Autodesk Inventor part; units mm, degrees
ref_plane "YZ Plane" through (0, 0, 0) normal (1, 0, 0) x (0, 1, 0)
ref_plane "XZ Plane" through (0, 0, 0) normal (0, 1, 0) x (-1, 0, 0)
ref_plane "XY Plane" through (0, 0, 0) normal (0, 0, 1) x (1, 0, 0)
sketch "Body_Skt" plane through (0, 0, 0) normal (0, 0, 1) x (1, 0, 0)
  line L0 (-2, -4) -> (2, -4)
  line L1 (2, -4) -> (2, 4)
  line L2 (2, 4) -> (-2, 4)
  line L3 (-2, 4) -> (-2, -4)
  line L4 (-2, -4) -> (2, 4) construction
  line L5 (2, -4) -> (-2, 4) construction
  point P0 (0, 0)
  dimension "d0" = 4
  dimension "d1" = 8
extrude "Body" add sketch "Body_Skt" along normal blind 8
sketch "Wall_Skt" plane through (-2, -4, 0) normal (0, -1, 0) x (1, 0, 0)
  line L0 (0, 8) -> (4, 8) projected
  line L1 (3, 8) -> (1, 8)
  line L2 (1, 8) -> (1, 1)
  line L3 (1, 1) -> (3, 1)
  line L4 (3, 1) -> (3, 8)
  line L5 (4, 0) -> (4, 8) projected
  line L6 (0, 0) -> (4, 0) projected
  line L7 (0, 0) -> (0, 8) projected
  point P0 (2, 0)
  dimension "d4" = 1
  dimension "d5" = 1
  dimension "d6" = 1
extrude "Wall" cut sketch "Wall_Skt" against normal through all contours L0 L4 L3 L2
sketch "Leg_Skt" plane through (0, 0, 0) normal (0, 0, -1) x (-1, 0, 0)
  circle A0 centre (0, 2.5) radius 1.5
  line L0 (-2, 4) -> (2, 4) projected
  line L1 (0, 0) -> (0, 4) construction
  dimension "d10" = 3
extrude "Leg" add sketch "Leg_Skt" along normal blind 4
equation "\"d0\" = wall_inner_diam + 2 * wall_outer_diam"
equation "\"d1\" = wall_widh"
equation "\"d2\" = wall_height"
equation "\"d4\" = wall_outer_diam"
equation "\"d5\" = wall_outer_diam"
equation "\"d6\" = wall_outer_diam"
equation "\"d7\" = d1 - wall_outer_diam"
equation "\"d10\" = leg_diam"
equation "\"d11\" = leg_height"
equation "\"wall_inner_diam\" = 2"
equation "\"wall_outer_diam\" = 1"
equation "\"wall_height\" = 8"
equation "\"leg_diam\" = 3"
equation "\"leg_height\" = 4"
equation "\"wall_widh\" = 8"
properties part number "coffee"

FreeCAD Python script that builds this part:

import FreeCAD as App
import Part
import Sketcher

V = App.Vector
Q = App.Units.Quantity

doc = App.newDocument("Part")
body = doc.addObject("PartDesign::Body", "Body")

sketch1 = body.newObject("Sketcher::SketchObject", "Sketch")
sketch1.AttachmentSupport = (doc.getObject("XY_Plane"), [""])
sketch1.MapMode = "FlatFace"
sketch1.addGeometry([
    Part.LineSegment(V(-2, 4, 0), V(-2, -4, 0)),
    Part.LineSegment(V(-2, -4, 0), V(2, -4, 0)),
    Part.LineSegment(V(2, -4, 0), V(2, 4, 0)),
    Part.LineSegment(V(2, 4, 0), V(-2, 4, 0)),
], False)
sketch1.addConstraint([
    Sketcher.Constraint("Coincident", 0, 2, 1, 1),
    Sketcher.Constraint("Coincident", 1, 2, 2, 1),
    Sketcher.Constraint("Coincident", 2, 2, 3, 1),
    Sketcher.Constraint("Coincident", 3, 2, 0, 1),
    Sketcher.Constraint("Vertical", 0),
    Sketcher.Constraint("Horizontal", 1),
    Sketcher.Constraint("Vertical", 2),
    Sketcher.Constraint("Horizontal", 3),
    Sketcher.Constraint("Symmetric", 0, 2, 2, 2, -1, 1),
    Sketcher.Constraint("DistanceX", 1, 1, 1, 2, Q("4 mm")),
    Sketcher.Constraint("DistanceY", 0, 2, 0, 1, Q("8 mm")),
])
pad1 = body.newObject("PartDesign::Pad", "Pad")
pad1.Profile = sketch1
pad1.Length = 8

sketch2 = body.newObject("Sketcher::SketchObject", "Sketch001")
sketch2.AttachmentSupport = (doc.getObject("XZ_Plane"), [""])
sketch2.MapMode = "FlatFace"
sketch2.AttachmentOffset = App.Placement(V(0, 0, 4), App.Rotation())
sketch2.addGeometry([
    Part.LineSegment(V(1, 8, 0), V(-1, 8, 0)),
    Part.LineSegment(V(-1, 8, 0), V(-1, 1, 0)),
    Part.LineSegment(V(-1, 1, 0), V(1, 1, 0)),
    Part.LineSegment(V(1, 1, 0), V(1, 8, 0)),
], False)
sketch2.addConstraint([
    Sketcher.Constraint("Coincident", 0, 2, 1, 1),
    Sketcher.Constraint("Coincident", 1, 2, 2, 1),
    Sketcher.Constraint("Coincident", 2, 2, 3, 1),
    Sketcher.Constraint("Coincident", 3, 2, 0, 1),
    Sketcher.Constraint("Horizontal", 0),
    Sketcher.Constraint("Vertical", 1),
    Sketcher.Constraint("Horizontal", 2),
    Sketcher.Constraint("Vertical", 3),
    Sketcher.Constraint("DistanceX", 0, 2, -1, 1, Q("1 mm")),
    Sketcher.Constraint("DistanceY", -1, 1, 1, 2, Q("1 mm")),
    Sketcher.Constraint("DistanceX", -1, 1, 2, 2, Q("1 mm")),
    Sketcher.Constraint("DistanceY", 1, 2, 1, 1, Q("7 mm")),
])
pocket1 = body.newObject("PartDesign::Pocket", "Pocket")
pocket1.Profile = sketch2
pocket1.Type = "ThroughAll"

sketch3 = body.newObject("Sketcher::SketchObject", "Sketch002")
sketch3.AttachmentSupport = (doc.getObject("XY_Plane"), [""])
sketch3.MapMode = "FlatFace"
sketch3.addGeometry(Part.Circle(V(0, 2.5, 0), V(0, 0, 1), 1.5), False)
sketch3.addConstraint([
    Sketcher.Constraint("PointOnObject", 0, 3, -2),
    Sketcher.Constraint("Diameter", 0, Q("3 mm")),
    Sketcher.Constraint("DistanceY", -1, 1, 0, 3, Q("2.5 mm")),
])
pad2 = body.newObject("PartDesign::Pad", "Pad001")
pad2.Profile = sketch3
pad2.Length = 4
pad2.Reversed = True

doc.recompute()
